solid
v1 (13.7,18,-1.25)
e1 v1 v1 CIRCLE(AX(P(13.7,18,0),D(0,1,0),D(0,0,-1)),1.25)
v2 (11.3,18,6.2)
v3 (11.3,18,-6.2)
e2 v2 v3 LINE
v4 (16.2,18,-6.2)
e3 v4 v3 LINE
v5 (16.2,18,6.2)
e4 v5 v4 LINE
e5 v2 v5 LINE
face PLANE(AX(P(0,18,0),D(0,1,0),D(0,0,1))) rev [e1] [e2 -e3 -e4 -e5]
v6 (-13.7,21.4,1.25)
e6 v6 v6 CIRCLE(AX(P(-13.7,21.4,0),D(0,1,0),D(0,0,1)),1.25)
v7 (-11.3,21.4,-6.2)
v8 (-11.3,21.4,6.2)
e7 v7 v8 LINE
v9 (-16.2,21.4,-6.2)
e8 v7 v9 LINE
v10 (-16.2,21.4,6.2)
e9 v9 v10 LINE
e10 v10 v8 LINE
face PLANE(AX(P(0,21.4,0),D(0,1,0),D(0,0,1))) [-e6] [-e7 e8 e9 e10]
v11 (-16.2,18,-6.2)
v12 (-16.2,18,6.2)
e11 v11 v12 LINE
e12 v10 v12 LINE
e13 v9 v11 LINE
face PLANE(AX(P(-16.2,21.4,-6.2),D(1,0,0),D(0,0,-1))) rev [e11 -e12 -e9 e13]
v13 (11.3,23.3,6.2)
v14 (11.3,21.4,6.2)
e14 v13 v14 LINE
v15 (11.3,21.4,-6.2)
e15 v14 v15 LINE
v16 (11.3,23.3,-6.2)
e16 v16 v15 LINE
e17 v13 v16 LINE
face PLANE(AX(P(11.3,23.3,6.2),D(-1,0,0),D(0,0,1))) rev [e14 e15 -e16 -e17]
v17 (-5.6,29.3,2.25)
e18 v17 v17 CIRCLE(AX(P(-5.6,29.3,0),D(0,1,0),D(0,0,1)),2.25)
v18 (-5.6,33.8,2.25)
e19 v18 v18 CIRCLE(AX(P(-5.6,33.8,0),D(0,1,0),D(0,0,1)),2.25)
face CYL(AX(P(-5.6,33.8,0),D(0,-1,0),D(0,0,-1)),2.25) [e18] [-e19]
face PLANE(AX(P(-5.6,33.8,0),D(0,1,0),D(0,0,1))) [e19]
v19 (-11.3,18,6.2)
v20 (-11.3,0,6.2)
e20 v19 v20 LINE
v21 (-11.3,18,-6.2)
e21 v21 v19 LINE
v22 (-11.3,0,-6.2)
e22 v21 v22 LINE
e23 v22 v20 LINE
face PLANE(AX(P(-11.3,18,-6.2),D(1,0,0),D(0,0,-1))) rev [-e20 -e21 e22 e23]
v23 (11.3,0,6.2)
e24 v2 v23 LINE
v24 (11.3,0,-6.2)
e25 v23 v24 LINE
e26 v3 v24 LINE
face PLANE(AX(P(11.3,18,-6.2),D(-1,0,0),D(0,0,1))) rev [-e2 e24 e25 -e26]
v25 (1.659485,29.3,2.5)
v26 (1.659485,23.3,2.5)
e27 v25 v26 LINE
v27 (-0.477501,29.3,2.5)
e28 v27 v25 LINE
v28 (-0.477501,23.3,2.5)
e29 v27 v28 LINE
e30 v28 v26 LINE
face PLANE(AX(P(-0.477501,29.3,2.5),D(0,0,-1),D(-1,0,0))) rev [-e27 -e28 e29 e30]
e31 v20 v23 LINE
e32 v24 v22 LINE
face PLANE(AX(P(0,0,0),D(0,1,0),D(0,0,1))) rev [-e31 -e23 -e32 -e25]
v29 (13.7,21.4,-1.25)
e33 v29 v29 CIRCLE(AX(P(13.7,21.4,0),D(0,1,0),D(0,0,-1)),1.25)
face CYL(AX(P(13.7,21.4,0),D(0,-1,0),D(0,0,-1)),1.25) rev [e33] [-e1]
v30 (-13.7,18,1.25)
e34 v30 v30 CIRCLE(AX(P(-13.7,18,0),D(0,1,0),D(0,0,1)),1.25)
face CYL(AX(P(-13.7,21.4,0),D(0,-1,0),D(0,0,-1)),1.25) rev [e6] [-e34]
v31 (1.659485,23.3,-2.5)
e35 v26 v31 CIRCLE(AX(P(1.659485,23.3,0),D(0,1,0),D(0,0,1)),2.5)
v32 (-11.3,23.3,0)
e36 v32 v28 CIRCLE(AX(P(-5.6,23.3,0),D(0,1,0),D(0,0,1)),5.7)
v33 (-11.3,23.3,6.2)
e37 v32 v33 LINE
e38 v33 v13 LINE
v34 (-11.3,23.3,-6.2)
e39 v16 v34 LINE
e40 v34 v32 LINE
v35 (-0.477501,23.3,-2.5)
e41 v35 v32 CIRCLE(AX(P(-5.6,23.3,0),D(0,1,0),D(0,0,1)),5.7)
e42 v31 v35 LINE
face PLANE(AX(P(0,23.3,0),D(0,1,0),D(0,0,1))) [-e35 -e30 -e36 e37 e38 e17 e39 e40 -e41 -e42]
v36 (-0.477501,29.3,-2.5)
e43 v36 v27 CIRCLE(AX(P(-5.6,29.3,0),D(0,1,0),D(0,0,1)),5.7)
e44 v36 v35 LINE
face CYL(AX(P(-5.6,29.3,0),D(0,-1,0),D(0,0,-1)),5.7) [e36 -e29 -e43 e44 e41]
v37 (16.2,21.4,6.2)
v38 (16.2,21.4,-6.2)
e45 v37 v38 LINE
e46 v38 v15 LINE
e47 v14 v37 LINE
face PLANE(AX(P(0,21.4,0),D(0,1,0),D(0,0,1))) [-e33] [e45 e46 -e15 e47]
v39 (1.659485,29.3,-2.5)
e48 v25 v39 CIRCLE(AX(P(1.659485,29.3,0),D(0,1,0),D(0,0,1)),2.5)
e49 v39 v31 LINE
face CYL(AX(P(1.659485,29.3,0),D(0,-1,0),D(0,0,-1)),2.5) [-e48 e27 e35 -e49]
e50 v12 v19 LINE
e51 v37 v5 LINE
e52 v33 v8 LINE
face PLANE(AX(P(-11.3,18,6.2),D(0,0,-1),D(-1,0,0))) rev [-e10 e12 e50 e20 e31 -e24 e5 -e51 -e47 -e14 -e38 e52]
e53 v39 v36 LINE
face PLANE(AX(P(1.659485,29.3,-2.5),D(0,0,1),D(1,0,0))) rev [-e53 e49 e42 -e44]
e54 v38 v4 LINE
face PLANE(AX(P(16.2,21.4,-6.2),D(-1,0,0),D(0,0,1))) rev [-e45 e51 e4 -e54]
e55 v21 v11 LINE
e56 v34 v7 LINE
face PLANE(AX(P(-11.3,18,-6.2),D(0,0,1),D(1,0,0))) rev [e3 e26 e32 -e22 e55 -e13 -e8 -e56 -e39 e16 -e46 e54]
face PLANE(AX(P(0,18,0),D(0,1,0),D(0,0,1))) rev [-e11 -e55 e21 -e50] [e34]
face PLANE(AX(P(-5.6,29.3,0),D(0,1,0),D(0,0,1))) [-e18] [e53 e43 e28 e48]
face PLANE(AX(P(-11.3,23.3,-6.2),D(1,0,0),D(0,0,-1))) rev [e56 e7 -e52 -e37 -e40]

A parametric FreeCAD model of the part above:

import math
import FreeCAD as App
import Part
import Sketcher

doc = App.newDocument("Part")
params = doc.addObject("Spreadsheet::Sheet", "Params")
for row, (alias, value) in enumerate([
    ("sketch1_width", "22.6 mm"),
    ("sketch1_height", "12.4 mm"),
    ("pad1_length", "18 mm"),
    ("sketch2_diameter", "2.5 mm"),
    ("sketch2_width", "32.4 mm"),
    ("sketch2_height", "12.4 mm"),
    ("pad2_length", "3.4 mm"),
    ("sketch3_width", "22.6 mm"),
    ("sketch3_height", "12.4 mm"),
    ("pad3_length", "1.9 mm"),
    ("sketch4_radius", "5.7 mm"),
    ("sketch4_radius2", "2.5 mm"),
    ("pad4_length", "6 mm"),
    ("sketch5_diameter", "4.5 mm"),
    ("pad5_length", "4.5 mm"),
], start=1):
    params.set(f"A{row}", alias)
    params.set(f"B{row}", "=" + value)
    params.setAlias(f"B{row}", alias)

body = doc.addObject("PartDesign::Body", "Body")

# Sketch on XZ plane
sketch1 = body.newObject("Sketcher::SketchObject", "Sketch")
sketch1.AttachmentSupport = (doc.getObject("XZ_Plane"), [""])
sketch1.MapMode = "FlatFace"
sketch1.addGeometry(Part.LineSegment(App.Vector(-11.3, -6.2, 0), App.Vector(-11.3, 6.2, 0)), False)
sketch1.addGeometry(Part.LineSegment(App.Vector(-11.3, 6.2, 0), App.Vector(11.3, 6.2, 0)), False)
sketch1.addGeometry(Part.LineSegment(App.Vector(11.3, 6.2, 0), App.Vector(11.3, -6.2, 0)), False)
sketch1.addGeometry(Part.LineSegment(App.Vector(11.3, -6.2, 0), App.Vector(-11.3, -6.2, 0)), False)
sketch1.addConstraint(Sketcher.Constraint("Coincident", 0, 2, 1, 1))
sketch1.addConstraint(Sketcher.Constraint("Coincident", 1, 2, 2, 1))
sketch1.addConstraint(Sketcher.Constraint("Coincident", 2, 2, 3, 1))
sketch1.addConstraint(Sketcher.Constraint("Coincident", 3, 2, 0, 1))
sketch1.addConstraint(Sketcher.Constraint("Vertical", 0))
sketch1.addConstraint(Sketcher.Constraint("Horizontal", 1))
sketch1.addConstraint(Sketcher.Constraint("Vertical", 2))
sketch1.addConstraint(Sketcher.Constraint("Horizontal", 3))
sketch1.addConstraint(Sketcher.Constraint("Symmetric", 0, 2, 2, 2, -1, 1))
sketch1.addConstraint(Sketcher.Constraint("DistanceX", 1, 1, 1, 2, 22.6))
sketch1.addConstraint(Sketcher.Constraint("DistanceY", 0, 1, 0, 2, 12.4))
sketch1.setExpression("Constraints[9]", "Params.sketch1_width")
sketch1.setExpression("Constraints[10]", "Params.sketch1_height")
pad1 = body.newObject("PartDesign::Pad", "Pad")
pad1.Profile = sketch1
pad1.setExpression("Length", "Params.pad1_length")
pad1.Reversed = True

# Sketch on XZ plane
sketch2 = body.newObject("Sketcher::SketchObject", "Sketch001")
sketch2.AttachmentSupport = (doc.getObject("XZ_Plane"), [""])
sketch2.MapMode = "FlatFace"
sketch2.AttachmentOffset = App.Placement(App.Vector(0, 0, -18), App.Rotation())
sketch2.addGeometry(Part.LineSegment(App.Vector(-16.2, -6.2, 0), App.Vector(-16.2, 6.2, 0)), False)
sketch2.addGeometry(Part.LineSegment(App.Vector(-16.2, 6.2, 0), App.Vector(16.2, 6.2, 0)), False)
sketch2.addGeometry(Part.LineSegment(App.Vector(16.2, 6.2, 0), App.Vector(16.2, -6.2, 0)), False)
sketch2.addGeometry(Part.LineSegment(App.Vector(16.2, -6.2, 0), App.Vector(-16.2, -6.2, 0)), False)
sketch2.addGeometry(Part.Circle(App.Vector(-13.7, 0, 0), App.Vector(0, 0, 1), 1.25), False)
sketch2.addGeometry(Part.Circle(App.Vector(13.7, 0, 0), App.Vector(0, 0, 1), 1.25), False)
sketch2.addConstraint(Sketcher.Constraint("Coincident", 0, 2, 1, 1))
sketch2.addConstraint(Sketcher.Constraint("Coincident", 1, 2, 2, 1))
sketch2.addConstraint(Sketcher.Constraint("Coincident", 2, 2, 3, 1))
sketch2.addConstraint(Sketcher.Constraint("Coincident", 3, 2, 0, 1))
sketch2.addConstraint(Sketcher.Constraint("Vertical", 0))
sketch2.addConstraint(Sketcher.Constraint("Horizontal", 1))
sketch2.addConstraint(Sketcher.Constraint("Vertical", 2))
sketch2.addConstraint(Sketcher.Constraint("Horizontal", 3))
sketch2.addConstraint(Sketcher.Constraint("Equal", 4, 5))
sketch2.addConstraint(Sketcher.Constraint("Symmetric", 4, 3, 5, 3, -1, 1))
sketch2.addConstraint(Sketcher.Constraint("Symmetric", 0, 2, 2, 2, -1, 1))
sketch2.addConstraint(Sketcher.Constraint("PointOnObject", 4, 3, -1))
sketch2.addConstraint(Sketcher.Constraint("Diameter", 4, 2.5))
sketch2.addConstraint(Sketcher.Constraint("DistanceX", 1, 1, 1, 2, 32.4))
sketch2.addConstraint(Sketcher.Constraint("DistanceY", 0, 1, 0, 2, 12.4))
sketch2.addConstraint(Sketcher.Constraint("DistanceX", 4, 3, -1, 1, 13.7))
sketch2.setExpression("Constraints[12]", "Params.sketch2_diameter")
sketch2.setExpression("Constraints[13]", "Params.sketch2_width")
sketch2.setExpression("Constraints[14]", "Params.sketch2_height")
pad2 = body.newObject("PartDesign::Pad", "Pad001")
pad2.Profile = sketch2
pad2.setExpression("Length", "Params.pad2_length")
pad2.Reversed = True

# Sketch on XZ plane
sketch3 = body.newObject("Sketcher::SketchObject", "Sketch002")
sketch3.AttachmentSupport = (doc.getObject("XZ_Plane"), [""])
sketch3.MapMode = "FlatFace"
sketch3.AttachmentOffset = App.Placement(App.Vector(0, 0, -21.4), App.Rotation())
sketch3.addGeometry(Part.LineSegment(App.Vector(-11.3, -6.2, 0), App.Vector(-11.3, 6.2, 0)), False)
sketch3.addGeometry(Part.LineSegment(App.Vector(-11.3, 6.2, 0), App.Vector(11.3, 6.2, 0)), False)
sketch3.addGeometry(Part.LineSegment(App.Vector(11.3, 6.2, 0), App.Vector(11.3, -6.2, 0)), False)
sketch3.addGeometry(Part.LineSegment(App.Vector(11.3, -6.2, 0), App.Vector(-11.3, -6.2, 0)), False)
sketch3.addConstraint(Sketcher.Constraint("Coincident", 0, 2, 1, 1))
sketch3.addConstraint(Sketcher.Constraint("Coincident", 1, 2, 2, 1))
sketch3.addConstraint(Sketcher.Constraint("Coincident", 2, 2, 3, 1))
sketch3.addConstraint(Sketcher.Constraint("Coincident", 3, 2, 0, 1))
sketch3.addConstraint(Sketcher.Constraint("Vertical", 0))
sketch3.addConstraint(Sketcher.Constraint("Horizontal", 1))
sketch3.addConstraint(Sketcher.Constraint("Vertical", 2))
sketch3.addConstraint(Sketcher.Constraint("Horizontal", 3))
sketch3.addConstraint(Sketcher.Constraint("Symmetric", 0, 2, 2, 2, -1, 1))
sketch3.addConstraint(Sketcher.Constraint("DistanceX", 1, 1, 1, 2, 22.6))
sketch3.addConstraint(Sketcher.Constraint("DistanceY", 0, 1, 0, 2, 12.4))
sketch3.setExpression("Constraints[9]", "Params.sketch3_width")
sketch3.setExpression("Constraints[10]", "Params.sketch3_height")
pad3 = body.newObject("PartDesign::Pad", "Pad002")
pad3.Profile = sketch3
pad3.setExpression("Length", "Params.pad3_length")
pad3.Reversed = True

# Sketch on XZ plane
sketch4 = body.newObject("Sketcher::SketchObject", "Sketch003")
sketch4.AttachmentSupport = (doc.getObject("XZ_Plane"), [""])
sketch4.MapMode = "FlatFace"
sketch4.AttachmentOffset = App.Placement(App.Vector(0, 0, -23.3), App.Rotation())
sketch4.addGeometry(Part.LineSegment(App.Vector(1.659485, -2.5, 0), App.Vector(-0.477501, -2.5, 0)), False)
sketch4.addGeometry(Part.ArcOfCircle(Part.Circle(App.Vector(-5.6, 0, 0), App.Vector(0, 0, 1), 5.7), math.radians(26.014366), math.radians(333.985634)), False)
sketch4.addGeometry(Part.LineSegment(App.Vector(-0.477501, 2.5, 0), App.Vector(1.659485, 2.5, 0)), False)
sketch4.addGeometry(Part.ArcOfCircle(Part.Circle(App.Vector(1.659485, 0, 0), App.Vector(0, 0, 1), 2.5), math.radians(-90), math.radians(90)), False)
sketch4.addConstraint(Sketcher.Constraint("Coincident", 0, 2, 1, 2))
sketch4.addConstraint(Sketcher.Constraint("Coincident", 1, 1, 2, 1))
sketch4.addConstraint(Sketcher.Constraint("Tangent", 2, 2, 3, 2))
sketch4.addConstraint(Sketcher.Constraint("Tangent", 3, 1, 0, 1))
sketch4.addConstraint(Sketcher.Constraint("Horizontal", 0))
sketch4.addConstraint(Sketcher.Constraint("Horizontal", 2))
sketch4.addConstraint(Sketcher.Constraint("Symmetric", 0, 2, 1, 1, -1))
sketch4.addConstraint(Sketcher.Constraint("Radius", 1, 5.7))
sketch4.addConstraint(Sketcher.Constraint("Radius", 3, 2.5))
sketch4.addConstraint(Sketcher.Constraint("DistanceX", 1, 3, -1, 1, 5.6))
sketch4.addConstraint(Sketcher.Constraint("DistanceX", 0, 2, 0, 1, 2.136986))
sketch4.setExpression("Constraints[7]", "Params.sketch4_radius")
sketch4.setExpression("Constraints[8]", "Params.sketch4_radius2")
pad4 = body.newObject("PartDesign::Pad", "Pad003")
pad4.Profile = sketch4
pad4.setExpression("Length", "Params.pad4_length")
pad4.Reversed = True

# Sketch on XZ plane
sketch5 = body.newObject("Sketcher::SketchObject", "Sketch004")
sketch5.AttachmentSupport = (doc.getObject("XZ_Plane"), [""])
sketch5.MapMode = "FlatFace"
sketch5.AttachmentOffset = App.Placement(App.Vector(0, 0, -29.3), App.Rotation())
sketch5.addGeometry(Part.Circle(App.Vector(-5.6, 0, 0), App.Vector(0, 0, 1), 2.25), False)
sketch5.addConstraint(Sketcher.Constraint("PointOnObject", 0, 3, -1))
sketch5.addConstraint(Sketcher.Constraint("Diameter", 0, 4.5))
sketch5.addConstraint(Sketcher.Constraint("DistanceX", 0, 3, -1, 1, 5.6))
sketch5.setExpression("Constraints[1]", "Params.sketch5_diameter")
pad5 = body.newObject("PartDesign::Pad", "Pad004")
pad5.Profile = sketch5
pad5.setExpression("Length", "Params.pad5_length")
pad5.Reversed = True

doc.recompute()
